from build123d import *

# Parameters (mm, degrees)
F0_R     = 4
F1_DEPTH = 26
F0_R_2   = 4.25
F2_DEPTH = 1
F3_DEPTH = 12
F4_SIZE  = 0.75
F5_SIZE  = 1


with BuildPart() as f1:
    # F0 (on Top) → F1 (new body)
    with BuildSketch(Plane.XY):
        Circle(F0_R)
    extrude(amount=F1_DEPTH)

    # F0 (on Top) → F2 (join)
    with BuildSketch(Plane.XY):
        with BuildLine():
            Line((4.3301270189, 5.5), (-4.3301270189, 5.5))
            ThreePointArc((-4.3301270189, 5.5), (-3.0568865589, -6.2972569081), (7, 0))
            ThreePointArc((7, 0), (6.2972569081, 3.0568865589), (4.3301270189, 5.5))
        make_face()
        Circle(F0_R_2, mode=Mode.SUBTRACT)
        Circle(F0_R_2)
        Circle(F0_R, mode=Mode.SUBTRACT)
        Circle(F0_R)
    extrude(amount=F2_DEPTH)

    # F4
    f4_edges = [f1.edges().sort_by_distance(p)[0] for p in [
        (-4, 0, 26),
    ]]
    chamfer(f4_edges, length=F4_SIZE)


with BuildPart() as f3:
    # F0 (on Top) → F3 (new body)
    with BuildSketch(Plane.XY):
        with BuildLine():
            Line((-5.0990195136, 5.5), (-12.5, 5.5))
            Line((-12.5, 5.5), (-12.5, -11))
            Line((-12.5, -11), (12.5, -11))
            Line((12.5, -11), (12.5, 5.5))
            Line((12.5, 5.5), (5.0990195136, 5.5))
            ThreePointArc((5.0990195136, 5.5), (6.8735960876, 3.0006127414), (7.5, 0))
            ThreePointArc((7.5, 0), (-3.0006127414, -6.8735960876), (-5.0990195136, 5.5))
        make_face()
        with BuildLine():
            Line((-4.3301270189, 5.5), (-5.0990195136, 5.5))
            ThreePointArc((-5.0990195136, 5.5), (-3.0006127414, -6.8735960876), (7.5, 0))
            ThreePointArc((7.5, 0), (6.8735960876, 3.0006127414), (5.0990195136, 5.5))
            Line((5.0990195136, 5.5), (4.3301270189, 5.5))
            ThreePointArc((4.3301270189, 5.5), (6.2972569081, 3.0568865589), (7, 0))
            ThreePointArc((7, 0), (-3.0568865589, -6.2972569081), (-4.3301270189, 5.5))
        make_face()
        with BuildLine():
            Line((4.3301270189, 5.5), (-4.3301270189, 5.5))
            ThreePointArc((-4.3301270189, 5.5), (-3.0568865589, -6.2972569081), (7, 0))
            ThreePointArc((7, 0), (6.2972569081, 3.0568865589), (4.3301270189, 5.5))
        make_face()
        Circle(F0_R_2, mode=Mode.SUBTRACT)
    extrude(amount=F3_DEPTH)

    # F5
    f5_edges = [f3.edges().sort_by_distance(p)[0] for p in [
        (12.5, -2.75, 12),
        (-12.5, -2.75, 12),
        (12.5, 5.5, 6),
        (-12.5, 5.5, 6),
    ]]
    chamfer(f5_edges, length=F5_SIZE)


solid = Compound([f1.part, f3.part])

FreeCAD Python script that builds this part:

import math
import FreeCAD as App
import Part
import Sketcher
from FreeCAD import Vector


def edges_at(feature, points):
    """Names of the edges that pass closest to the given points."""
    edges = feature.Shape.Edges
    near = lambda p: min(range(len(edges)), key=lambda i: edges[i].distToShape(Part.Vertex(*p))[0])
    return sorted({f"Edge{near(p) + 1}" for p in points})


def add_polygon(sketch, points):
    """Adds a closed chain of lines whose ends are joined by coincident constraints."""
    first, n = sketch.GeometryCount, len(points)
    for a, b in zip(points, points[1:] + points[:1]):
        sketch.addGeometry(Part.LineSegment(App.Vector(*a, 0), App.Vector(*b, 0)), False)
    for i in range(n):
        sketch.addConstraint(Sketcher.Constraint("Coincident", first + i, 2, first + (i + 1) % n, 1))

doc = App.newDocument("Part")
body = doc.addObject("PartDesign::Body", "Body")

# Sketch on XY plane
sketch1 = body.newObject("Sketcher::SketchObject", "Sketch")
sketch1.AttachmentSupport = (doc.getObject("XY_Plane"), [""])
sketch1.MapMode = "FlatFace"
sketch1.addGeometry(Part.Circle(Vector(0, 0, 0), Vector(0, 0, 1), 4), False)
sketch1.addConstraint([
    Sketcher.Constraint("Coincident", 0, 3, -1, 1),
    Sketcher.Constraint("Diameter", 0, 8.0),
])
pad1 = body.newObject("PartDesign::Pad", "Pad")
pad1.Profile = sketch1
pad1.Length = 26

# Sketch on XY plane
sketch2 = body.newObject("Sketcher::SketchObject", "Sketch001")
sketch2.AttachmentSupport = (doc.getObject("XY_Plane"), [""])
sketch2.MapMode = "FlatFace"
sketch2.addGeometry([
    Part.LineSegment(Vector(4, 6, 0), Vector(-4, 6, 0)),
    Part.ArcOfCircle(Part.Circle(Vector(0, 0, 0), Vector(0, 0, 1), 7), math.radians(128), math.radians(360)),
    Part.ArcOfCircle(Part.Circle(Vector(0, 0, 0), Vector(0, 0, 1), 7), math.radians(0), math.radians(52)),
], False)
sketch2.addConstraint([
    Sketcher.Constraint("Coincident", 0, 2, 1, 1),
    Sketcher.Constraint("Tangent", 1, 2, 2, 1),
    Sketcher.Constraint("Coincident", 2, 2, 0, 1),
    Sketcher.Constraint("Horizontal", 0),
    Sketcher.Constraint("Coincident", 1, 3, -1, 1),
    Sketcher.Constraint("Equal", 1, 2),
    Sketcher.Constraint("PointOnObject", 1, 2, -1),
    Sketcher.Constraint("Radius", 1, 7.0),
    Sketcher.Constraint("DistanceY", -1, 1, 0, 2, 5.5),
])
pad2 = body.newObject("PartDesign::Pad", "Pad001")
pad2.Profile = sketch2
pad2.Length = 1
doc.recompute()

chamfer = body.newObject("PartDesign::Chamfer", "Chamfer")
chamfer.Base = (pad2, edges_at(pad2, [(-4, 0, 26)]))
chamfer.Size = 0.75
body2 = doc.addObject("PartDesign::Body", "Body001")

# Sketch on XY plane
sketch3 = body2.newObject("Sketcher::SketchObject", "Sketch002")
sketch3.AttachmentSupport = (doc.getObject("XY_Plane001"), [""])
sketch3.MapMode = "FlatFace"
add_polygon(sketch3, [(-12.5, 5.5), (-12.5, -11), (12.5, -11), (12.5, 5.5)])  # lines 0-3
sketch3.addGeometry(Part.Circle(Vector(0, 0, 0), Vector(0, 0, 1), 4.2), False)  # 4
sketch3.addConstraint([
    Sketcher.Constraint("Vertical", 0),
    Sketcher.Constraint("Horizontal", 1),
    Sketcher.Constraint("Vertical", 2),
    Sketcher.Constraint("Horizontal", 3),
    Sketcher.Constraint("Coincident", 4, 3, -1, 1),
    Sketcher.Constraint("Diameter", 4, 8.5),
    Sketcher.Constraint("DistanceX", 1, 1, 1, 2, 25.0),
    Sketcher.Constraint("DistanceY", 0, 2, 0, 1, 16.5),
    Sketcher.Constraint("DistanceY", 0, 2, -1, 1, 11.0),
    Sketcher.Constraint("DistanceX", 0, 2, -1, 1, 12.5),
])
pad3 = body2.newObject("PartDesign::Pad", "Pad002")
pad3.Profile = sketch3
pad3.Length = 12
doc.recompute()

chamfer2 = body2.newObject("PartDesign::Chamfer", "Chamfer001")
chamfer2.Base = (pad3, edges_at(pad3, [
    (12.5, -2.75, 12),
    (-12.5, -2.75, 12),
    (12.5, 5.5, 6),
    (-12.5, 5.5, 6),
]))
chamfer2.Size = 1

doc.recompute()
